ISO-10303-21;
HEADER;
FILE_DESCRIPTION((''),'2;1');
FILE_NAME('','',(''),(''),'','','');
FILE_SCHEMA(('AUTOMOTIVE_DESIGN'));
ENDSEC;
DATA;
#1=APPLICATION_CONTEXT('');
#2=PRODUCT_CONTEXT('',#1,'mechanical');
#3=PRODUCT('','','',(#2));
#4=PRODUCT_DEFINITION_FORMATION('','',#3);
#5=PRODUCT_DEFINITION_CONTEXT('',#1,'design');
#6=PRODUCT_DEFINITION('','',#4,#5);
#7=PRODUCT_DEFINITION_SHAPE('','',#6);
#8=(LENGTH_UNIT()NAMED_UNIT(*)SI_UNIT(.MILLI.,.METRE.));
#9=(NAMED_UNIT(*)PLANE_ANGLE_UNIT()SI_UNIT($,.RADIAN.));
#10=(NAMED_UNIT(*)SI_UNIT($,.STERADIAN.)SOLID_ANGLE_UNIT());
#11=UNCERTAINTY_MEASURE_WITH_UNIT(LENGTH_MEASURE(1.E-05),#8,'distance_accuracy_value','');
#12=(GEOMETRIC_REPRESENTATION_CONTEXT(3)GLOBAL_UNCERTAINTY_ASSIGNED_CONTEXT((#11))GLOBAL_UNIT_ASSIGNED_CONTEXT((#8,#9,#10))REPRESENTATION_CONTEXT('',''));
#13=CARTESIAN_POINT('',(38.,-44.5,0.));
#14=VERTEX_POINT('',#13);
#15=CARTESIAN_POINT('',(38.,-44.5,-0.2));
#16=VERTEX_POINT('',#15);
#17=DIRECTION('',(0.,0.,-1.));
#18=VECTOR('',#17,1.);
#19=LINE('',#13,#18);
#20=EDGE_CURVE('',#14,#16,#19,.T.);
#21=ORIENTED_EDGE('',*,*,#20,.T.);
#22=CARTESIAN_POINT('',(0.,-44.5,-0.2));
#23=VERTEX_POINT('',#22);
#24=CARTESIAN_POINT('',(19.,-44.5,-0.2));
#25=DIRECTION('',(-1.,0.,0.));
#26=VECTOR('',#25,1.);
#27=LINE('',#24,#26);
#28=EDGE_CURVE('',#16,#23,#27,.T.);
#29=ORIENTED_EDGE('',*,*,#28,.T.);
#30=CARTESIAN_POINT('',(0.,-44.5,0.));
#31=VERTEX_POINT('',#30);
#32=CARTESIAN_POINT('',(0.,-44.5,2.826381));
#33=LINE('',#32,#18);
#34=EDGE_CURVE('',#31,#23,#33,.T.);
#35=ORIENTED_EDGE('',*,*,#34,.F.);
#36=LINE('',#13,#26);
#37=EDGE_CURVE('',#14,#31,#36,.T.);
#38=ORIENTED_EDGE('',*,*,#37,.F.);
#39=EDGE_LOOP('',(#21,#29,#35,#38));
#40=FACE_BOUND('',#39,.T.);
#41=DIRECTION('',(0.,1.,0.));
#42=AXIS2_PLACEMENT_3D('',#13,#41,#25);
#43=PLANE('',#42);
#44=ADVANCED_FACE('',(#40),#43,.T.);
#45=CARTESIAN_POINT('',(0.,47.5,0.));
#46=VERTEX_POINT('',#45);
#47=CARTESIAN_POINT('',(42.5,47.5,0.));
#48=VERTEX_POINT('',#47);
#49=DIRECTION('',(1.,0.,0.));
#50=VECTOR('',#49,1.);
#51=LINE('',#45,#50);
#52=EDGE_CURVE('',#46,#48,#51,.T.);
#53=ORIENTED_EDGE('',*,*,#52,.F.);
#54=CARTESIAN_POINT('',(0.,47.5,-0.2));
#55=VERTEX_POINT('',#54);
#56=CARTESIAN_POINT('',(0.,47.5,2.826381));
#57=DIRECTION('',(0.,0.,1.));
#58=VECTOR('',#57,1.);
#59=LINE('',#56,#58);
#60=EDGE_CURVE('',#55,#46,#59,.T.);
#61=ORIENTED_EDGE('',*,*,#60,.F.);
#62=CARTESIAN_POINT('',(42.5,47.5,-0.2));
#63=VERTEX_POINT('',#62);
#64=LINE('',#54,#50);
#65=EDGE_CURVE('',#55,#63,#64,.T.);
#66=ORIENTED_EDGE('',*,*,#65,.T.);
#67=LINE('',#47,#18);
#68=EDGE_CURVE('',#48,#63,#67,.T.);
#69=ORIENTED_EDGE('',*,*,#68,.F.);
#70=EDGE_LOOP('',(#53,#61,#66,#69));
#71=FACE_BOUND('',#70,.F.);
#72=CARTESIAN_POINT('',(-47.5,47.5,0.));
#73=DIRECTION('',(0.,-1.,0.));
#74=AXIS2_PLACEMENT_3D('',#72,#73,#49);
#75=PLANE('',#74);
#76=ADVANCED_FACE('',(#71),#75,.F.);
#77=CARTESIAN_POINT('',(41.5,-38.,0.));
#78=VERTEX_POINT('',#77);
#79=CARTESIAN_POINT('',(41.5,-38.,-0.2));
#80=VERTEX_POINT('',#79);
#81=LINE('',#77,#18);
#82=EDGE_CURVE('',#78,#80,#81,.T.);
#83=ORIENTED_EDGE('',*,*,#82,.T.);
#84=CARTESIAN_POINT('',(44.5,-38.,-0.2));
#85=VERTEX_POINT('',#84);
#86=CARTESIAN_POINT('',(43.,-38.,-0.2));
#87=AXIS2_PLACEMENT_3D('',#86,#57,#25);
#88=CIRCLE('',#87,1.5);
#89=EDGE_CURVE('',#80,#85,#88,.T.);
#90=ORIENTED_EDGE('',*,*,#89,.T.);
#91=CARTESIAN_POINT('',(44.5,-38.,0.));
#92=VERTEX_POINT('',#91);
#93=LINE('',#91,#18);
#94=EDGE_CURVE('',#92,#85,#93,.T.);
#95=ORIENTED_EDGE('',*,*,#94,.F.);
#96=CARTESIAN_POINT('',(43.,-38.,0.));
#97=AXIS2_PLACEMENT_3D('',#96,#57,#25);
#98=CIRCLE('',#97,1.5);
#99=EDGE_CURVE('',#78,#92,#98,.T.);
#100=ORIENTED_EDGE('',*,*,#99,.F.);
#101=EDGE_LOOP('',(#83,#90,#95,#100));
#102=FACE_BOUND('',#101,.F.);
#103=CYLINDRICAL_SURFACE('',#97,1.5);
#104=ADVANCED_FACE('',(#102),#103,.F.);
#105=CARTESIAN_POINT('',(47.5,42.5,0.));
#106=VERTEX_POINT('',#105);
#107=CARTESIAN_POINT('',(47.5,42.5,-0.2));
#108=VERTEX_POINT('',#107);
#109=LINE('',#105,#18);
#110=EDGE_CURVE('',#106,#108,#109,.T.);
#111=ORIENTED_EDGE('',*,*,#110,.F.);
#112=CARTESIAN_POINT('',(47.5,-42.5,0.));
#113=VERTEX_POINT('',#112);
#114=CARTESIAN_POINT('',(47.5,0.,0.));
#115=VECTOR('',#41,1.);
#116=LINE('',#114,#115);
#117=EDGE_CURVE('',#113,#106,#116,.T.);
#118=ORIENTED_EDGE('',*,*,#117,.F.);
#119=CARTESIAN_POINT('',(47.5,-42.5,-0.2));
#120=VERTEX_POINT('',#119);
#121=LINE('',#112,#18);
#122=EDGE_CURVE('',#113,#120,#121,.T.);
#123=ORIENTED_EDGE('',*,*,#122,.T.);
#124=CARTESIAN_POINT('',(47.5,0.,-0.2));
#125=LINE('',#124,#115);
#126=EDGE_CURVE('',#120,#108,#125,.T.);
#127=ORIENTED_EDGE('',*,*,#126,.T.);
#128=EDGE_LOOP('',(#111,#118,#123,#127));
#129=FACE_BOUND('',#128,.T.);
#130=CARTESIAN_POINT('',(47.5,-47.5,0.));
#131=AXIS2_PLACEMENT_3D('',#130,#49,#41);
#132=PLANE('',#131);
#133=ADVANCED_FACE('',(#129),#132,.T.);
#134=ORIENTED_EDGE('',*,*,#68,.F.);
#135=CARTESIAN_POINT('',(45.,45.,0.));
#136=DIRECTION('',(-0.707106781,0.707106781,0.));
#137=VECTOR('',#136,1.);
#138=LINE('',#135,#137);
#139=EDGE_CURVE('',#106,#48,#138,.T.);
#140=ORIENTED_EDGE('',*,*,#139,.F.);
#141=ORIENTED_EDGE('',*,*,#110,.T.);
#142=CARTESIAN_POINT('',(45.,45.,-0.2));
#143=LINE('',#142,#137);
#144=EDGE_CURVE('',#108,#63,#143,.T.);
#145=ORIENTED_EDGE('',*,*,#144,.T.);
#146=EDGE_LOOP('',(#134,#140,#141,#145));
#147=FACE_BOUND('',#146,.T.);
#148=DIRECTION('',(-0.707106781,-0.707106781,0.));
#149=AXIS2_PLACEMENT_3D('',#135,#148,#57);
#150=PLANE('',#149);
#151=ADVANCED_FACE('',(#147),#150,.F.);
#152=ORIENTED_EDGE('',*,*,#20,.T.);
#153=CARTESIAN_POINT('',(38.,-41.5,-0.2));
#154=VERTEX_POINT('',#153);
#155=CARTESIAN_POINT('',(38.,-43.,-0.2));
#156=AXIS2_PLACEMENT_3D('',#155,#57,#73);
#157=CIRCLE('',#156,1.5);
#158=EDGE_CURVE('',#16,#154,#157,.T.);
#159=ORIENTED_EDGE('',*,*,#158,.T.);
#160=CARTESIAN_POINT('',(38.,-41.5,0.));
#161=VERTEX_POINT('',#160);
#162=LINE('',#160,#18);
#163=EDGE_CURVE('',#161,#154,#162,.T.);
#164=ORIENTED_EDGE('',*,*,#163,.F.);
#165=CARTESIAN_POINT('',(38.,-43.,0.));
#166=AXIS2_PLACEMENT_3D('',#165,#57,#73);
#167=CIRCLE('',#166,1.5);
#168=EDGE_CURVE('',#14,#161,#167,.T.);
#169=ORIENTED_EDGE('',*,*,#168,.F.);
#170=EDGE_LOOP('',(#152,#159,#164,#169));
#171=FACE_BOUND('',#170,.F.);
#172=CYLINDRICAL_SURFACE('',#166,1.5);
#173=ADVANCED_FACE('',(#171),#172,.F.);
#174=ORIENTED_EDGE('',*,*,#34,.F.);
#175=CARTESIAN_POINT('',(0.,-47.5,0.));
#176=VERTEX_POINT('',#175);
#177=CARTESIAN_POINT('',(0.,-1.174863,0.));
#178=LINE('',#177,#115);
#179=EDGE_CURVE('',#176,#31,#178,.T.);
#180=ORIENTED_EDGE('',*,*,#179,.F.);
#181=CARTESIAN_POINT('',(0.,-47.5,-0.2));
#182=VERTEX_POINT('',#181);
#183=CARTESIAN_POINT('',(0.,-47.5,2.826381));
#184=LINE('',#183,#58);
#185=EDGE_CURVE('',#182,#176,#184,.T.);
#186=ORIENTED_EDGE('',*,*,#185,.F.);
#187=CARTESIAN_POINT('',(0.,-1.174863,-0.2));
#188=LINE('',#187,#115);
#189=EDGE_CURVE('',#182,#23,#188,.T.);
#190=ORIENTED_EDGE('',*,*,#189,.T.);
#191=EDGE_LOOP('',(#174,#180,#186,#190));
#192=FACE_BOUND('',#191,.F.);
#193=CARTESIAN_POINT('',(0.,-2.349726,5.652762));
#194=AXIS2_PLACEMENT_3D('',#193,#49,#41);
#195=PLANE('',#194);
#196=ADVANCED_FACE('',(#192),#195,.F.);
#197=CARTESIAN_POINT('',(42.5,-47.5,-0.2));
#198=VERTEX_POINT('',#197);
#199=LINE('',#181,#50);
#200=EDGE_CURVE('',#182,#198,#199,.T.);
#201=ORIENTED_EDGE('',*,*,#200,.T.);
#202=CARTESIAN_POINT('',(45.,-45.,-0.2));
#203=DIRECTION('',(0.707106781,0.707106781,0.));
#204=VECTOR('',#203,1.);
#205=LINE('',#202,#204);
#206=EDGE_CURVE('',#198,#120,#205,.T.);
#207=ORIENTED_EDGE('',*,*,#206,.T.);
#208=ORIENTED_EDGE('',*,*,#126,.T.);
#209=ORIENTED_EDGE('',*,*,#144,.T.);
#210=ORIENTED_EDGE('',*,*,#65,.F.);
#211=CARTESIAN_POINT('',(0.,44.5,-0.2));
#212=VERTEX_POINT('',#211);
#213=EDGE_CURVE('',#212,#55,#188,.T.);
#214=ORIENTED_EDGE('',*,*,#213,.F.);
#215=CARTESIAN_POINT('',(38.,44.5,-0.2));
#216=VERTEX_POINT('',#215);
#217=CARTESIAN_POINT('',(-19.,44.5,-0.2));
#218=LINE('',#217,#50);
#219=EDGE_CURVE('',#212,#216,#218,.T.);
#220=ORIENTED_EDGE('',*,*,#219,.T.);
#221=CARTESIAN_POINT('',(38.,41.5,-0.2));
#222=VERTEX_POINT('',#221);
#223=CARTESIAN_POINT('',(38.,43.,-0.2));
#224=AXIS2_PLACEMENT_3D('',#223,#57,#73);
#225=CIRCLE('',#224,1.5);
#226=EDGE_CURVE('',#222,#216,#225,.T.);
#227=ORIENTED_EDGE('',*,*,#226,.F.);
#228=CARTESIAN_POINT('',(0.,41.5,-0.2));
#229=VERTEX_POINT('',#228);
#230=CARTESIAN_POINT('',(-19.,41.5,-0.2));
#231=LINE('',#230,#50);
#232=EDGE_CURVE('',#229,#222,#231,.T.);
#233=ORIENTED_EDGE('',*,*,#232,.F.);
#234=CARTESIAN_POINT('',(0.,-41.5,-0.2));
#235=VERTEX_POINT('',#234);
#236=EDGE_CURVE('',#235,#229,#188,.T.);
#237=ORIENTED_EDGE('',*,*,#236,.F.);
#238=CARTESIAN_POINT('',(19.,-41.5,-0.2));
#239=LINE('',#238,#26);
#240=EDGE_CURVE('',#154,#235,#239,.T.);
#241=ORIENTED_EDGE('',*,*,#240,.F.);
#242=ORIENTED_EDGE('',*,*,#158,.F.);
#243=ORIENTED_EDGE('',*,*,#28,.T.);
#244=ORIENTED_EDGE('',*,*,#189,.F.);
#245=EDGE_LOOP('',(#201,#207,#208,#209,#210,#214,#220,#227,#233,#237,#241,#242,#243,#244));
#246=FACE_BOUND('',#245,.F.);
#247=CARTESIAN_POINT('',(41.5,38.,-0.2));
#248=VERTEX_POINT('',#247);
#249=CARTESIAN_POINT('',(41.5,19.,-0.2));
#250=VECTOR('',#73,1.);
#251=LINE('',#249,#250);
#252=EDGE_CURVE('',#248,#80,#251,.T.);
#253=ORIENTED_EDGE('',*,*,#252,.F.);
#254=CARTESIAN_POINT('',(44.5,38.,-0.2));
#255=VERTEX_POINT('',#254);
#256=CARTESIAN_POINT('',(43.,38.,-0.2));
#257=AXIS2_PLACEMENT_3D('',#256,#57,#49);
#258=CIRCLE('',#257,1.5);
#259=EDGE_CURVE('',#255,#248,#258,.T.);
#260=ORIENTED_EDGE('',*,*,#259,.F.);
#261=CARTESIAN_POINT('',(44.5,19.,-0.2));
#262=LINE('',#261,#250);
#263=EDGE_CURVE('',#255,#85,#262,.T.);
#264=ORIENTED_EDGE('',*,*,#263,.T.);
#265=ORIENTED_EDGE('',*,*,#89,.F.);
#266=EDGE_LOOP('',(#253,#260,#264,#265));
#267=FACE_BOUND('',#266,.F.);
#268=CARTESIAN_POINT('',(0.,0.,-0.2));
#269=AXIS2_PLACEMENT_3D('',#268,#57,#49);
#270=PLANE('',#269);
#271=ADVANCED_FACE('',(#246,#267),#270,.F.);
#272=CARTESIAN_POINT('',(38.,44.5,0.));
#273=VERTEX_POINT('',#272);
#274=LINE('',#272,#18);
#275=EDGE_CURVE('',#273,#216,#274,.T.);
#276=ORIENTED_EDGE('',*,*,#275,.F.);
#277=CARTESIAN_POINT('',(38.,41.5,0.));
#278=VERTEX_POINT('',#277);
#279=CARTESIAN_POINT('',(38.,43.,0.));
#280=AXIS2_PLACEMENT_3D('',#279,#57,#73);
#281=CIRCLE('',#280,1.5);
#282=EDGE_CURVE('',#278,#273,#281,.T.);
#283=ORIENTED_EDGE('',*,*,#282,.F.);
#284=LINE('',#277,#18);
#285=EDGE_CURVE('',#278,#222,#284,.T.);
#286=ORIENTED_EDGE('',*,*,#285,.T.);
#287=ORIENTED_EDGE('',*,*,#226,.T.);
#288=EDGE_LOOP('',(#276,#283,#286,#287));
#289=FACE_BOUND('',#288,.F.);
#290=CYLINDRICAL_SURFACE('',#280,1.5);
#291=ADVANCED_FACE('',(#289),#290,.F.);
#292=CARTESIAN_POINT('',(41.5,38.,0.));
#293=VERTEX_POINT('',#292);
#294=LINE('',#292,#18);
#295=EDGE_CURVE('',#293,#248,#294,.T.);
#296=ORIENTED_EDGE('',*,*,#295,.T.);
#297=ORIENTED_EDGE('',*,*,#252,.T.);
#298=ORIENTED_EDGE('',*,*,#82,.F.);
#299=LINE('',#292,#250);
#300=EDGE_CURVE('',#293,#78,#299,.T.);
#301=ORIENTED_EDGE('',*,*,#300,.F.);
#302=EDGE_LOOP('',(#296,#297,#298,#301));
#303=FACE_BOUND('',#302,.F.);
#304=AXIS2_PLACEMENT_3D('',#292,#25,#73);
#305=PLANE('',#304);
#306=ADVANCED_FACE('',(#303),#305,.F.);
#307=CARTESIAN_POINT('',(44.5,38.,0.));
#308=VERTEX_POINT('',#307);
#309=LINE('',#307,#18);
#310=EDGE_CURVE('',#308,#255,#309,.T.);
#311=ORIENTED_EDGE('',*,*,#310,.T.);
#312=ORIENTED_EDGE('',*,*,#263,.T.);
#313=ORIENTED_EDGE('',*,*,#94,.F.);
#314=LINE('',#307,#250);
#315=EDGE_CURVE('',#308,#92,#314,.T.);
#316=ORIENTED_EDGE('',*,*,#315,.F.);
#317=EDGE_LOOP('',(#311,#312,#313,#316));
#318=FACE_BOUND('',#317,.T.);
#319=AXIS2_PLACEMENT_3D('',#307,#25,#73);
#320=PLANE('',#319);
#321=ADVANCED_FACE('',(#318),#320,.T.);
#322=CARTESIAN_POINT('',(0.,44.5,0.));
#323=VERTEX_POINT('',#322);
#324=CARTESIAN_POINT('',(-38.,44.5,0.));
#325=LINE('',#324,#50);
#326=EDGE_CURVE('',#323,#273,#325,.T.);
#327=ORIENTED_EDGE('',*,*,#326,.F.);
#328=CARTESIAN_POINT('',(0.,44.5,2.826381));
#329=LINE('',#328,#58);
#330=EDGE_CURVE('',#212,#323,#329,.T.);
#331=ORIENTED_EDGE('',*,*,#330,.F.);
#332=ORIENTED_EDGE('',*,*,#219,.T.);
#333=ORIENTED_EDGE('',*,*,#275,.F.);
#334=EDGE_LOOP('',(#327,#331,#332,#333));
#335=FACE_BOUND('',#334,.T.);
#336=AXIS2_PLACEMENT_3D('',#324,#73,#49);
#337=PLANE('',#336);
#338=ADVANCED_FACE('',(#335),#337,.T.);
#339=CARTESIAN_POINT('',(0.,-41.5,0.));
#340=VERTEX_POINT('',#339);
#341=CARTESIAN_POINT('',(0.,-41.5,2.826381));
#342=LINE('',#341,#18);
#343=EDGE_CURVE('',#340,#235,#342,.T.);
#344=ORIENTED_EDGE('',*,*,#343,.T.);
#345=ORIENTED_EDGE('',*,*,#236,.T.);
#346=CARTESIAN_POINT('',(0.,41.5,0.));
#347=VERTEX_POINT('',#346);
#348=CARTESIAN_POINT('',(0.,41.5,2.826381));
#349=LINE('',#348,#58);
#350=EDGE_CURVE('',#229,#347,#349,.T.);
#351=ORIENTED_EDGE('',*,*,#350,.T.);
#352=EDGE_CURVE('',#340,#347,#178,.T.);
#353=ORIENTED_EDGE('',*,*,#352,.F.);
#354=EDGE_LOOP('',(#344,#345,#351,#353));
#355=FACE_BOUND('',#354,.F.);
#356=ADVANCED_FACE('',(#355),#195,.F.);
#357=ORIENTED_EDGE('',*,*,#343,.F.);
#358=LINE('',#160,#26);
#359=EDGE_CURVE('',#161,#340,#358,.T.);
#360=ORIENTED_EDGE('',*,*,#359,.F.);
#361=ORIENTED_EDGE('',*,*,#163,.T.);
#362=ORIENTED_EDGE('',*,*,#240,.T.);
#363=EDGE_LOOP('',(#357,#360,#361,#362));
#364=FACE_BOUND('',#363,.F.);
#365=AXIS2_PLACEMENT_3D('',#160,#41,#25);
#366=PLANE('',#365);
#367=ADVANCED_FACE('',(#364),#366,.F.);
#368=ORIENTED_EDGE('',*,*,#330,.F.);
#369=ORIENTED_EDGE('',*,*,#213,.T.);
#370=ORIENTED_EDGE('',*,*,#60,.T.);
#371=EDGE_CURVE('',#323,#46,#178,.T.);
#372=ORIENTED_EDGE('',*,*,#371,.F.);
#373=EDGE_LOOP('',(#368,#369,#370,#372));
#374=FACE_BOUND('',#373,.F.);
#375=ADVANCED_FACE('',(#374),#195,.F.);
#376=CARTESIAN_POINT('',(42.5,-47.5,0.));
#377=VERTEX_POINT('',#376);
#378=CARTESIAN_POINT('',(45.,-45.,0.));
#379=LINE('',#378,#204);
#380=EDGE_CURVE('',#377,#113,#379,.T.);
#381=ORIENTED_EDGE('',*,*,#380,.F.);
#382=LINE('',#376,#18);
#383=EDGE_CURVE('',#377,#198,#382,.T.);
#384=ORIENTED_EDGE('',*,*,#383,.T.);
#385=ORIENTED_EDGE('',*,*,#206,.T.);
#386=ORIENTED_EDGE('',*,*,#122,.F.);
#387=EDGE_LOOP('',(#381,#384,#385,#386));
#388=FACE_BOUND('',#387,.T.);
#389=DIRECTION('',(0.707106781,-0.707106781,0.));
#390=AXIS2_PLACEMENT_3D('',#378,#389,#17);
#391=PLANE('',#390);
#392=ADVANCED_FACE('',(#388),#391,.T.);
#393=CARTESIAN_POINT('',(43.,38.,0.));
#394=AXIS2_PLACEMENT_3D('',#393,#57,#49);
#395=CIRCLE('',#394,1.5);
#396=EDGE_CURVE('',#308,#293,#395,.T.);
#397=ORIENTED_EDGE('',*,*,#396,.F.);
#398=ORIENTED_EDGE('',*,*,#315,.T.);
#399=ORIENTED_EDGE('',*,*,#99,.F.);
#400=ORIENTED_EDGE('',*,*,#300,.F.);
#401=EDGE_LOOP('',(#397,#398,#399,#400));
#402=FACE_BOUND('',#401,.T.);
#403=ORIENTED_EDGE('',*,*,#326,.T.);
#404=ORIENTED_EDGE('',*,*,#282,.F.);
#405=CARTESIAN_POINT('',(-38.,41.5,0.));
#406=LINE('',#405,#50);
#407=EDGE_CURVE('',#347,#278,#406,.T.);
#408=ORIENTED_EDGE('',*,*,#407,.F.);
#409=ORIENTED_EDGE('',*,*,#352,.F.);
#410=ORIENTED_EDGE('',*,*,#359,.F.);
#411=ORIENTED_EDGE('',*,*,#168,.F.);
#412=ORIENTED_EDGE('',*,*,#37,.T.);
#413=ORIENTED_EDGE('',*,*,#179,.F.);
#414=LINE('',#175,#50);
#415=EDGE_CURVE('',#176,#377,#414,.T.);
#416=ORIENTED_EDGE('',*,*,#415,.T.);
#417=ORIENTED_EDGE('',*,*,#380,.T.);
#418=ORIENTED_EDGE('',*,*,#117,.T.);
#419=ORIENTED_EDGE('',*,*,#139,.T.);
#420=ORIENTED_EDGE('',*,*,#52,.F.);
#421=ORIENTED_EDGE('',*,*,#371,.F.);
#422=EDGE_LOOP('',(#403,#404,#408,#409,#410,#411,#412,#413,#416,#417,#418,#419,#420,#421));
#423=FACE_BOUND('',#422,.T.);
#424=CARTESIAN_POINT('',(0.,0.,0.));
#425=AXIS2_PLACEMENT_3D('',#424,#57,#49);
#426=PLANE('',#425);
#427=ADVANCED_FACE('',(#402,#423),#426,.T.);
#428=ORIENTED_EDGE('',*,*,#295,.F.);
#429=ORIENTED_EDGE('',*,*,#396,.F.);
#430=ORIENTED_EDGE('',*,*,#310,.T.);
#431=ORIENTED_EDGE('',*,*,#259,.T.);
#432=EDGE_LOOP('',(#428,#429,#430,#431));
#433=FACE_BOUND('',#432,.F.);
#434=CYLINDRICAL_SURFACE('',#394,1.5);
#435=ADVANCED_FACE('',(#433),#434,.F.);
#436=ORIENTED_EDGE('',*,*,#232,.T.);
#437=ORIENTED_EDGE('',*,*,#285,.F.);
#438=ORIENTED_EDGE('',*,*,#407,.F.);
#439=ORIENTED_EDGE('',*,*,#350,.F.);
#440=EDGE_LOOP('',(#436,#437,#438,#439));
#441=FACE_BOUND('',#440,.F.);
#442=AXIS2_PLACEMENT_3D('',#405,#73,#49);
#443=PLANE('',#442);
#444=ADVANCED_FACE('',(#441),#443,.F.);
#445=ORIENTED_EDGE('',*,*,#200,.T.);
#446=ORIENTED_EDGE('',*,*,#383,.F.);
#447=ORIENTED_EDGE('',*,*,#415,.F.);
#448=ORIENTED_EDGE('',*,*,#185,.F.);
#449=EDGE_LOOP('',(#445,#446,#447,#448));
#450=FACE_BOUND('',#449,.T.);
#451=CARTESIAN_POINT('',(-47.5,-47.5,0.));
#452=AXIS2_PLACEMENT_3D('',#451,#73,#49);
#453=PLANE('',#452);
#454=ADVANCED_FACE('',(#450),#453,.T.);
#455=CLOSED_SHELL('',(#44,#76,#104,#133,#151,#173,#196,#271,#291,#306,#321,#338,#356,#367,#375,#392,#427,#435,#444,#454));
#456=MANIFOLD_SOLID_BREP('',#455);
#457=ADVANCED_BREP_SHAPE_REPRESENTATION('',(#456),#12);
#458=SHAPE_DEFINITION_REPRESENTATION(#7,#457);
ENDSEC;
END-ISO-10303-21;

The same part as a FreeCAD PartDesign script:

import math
import FreeCAD as App
import Part
import Sketcher

V = App.Vector


def edges_at(feature, points):
    """Names of the edges that pass closest to the given points."""
    edges = feature.Shape.Edges
    near = lambda p: min(range(len(edges)), key=lambda i: edges[i].distToShape(Part.Vertex(*p))[0])
    return sorted({f"Edge{near(p) + 1}" for p in points})


def add_polygon(sketch, points):
    """Adds a closed chain of lines whose ends are joined by coincident constraints."""
    first, n = sketch.GeometryCount, len(points)
    for a, b in zip(points, points[1:] + points[:1]):
        sketch.addGeometry(Part.LineSegment(App.Vector(*a, 0), App.Vector(*b, 0)), False)
    for i in range(n):
        sketch.addConstraint(Sketcher.Constraint("Coincident", first + i, 2, first + (i + 1) % n, 1))

doc = App.newDocument("Part")
body = doc.addObject("PartDesign::Body", "Body")

# Sketch on XY plane
sketch1 = body.newObject("Sketcher::SketchObject", "Sketch")
sketch1.AttachmentSupport = (doc.getObject("XY_Plane"), [""])
sketch1.MapMode = "FlatFace"
add_polygon(sketch1, [(-48, 48), (-48, -48), (48, -48), (48, 48)])  # lines 0-3
sketch1.addConstraint([
    Sketcher.Constraint("Vertical", 0),
    Sketcher.Constraint("Horizontal", 1),
    Sketcher.Constraint("Vertical", 2),
    Sketcher.Constraint("Horizontal", 3),
    Sketcher.Constraint("Symmetric", 0, 2, 2, 2, -1, 1),
    Sketcher.Constraint("Equal", 3, 0),
    Sketcher.Constraint("DistanceX", 1, 1, 1, 2, 95.0),
])
pad1 = body.newObject("PartDesign::Pad", "Pad")
pad1.Profile = sketch1
pad1.Length = 0.2
pad1.Reversed = True
doc.recompute()

chamfer = body.newObject("PartDesign::Chamfer", "Chamfer")
chamfer.Base = (pad1, edges_at(pad1, [
    (-47.5, 47.5, -0.1),
    (47.5, 47.5, -0.1),
    (-47.5, -47.5, -0.1),
    (47.5, -47.5, -0.1),
]))
chamfer.Size = 5

# Sketch on XY plane
sketch2 = body.newObject("Sketcher::SketchObject", "Sketch001")
sketch2.AttachmentSupport = (doc.getObject("XY_Plane"), [""])
sketch2.MapMode = "FlatFace"
sketch2.addGeometry([
    Part.ArcOfCircle(Part.Circle(V(-38, 43, 0), V(0, 0, 1), 1.5), math.radians(90), math.radians(270)),
    Part.LineSegment(V(-38, 41.5, 0), V(38, 41.5, 0)),
    Part.ArcOfCircle(Part.Circle(V(38, 43, 0), V(0, 0, 1), 1.5), math.radians(-90), math.radians(90)),
    Part.LineSegment(V(38, 44.5, 0), V(-38, 44.5, 0)),
], False)
sketch2.addConstraint([
    Sketcher.Constraint("Tangent", 0, 2, 1, 1),
    Sketcher.Constraint("Tangent", 1, 2, 2, 1),
    Sketcher.Constraint("Tangent", 2, 2, 3, 1),
    Sketcher.Constraint("Tangent", 3, 2, 0, 1),
    Sketcher.Constraint("Horizontal", 1),
    Sketcher.Constraint("Horizontal", 3),
    Sketcher.Constraint("Radius", 0, 1.5),
    Sketcher.Constraint("DistanceX", 1, 1, 1, 2, 76.0),
    Sketcher.Constraint("DistanceX", 0, 3, -1, 1, 38.0),
    Sketcher.Constraint("DistanceY", -1, 1, 0, 3, 43.0),
])
pocket1 = body.newObject("PartDesign::Pocket", "Pocket")
pocket1.Profile = sketch2
pocket1.Length = 5
doc.recompute()

polarpattern = body.newObject("PartDesign::PolarPattern", "PolarPattern")
polarpattern.Originals = [pocket1]
polarpattern.Axis = (doc.getObject("Z_Axis"), [""])
polarpattern.Angle = 360
polarpattern.Occurrences = 4
body.Tip = polarpattern

# Sketch on YZ plane
sketch3 = body.newObject("Sketcher::SketchObject", "Sketch002")
sketch3.AttachmentSupport = (doc.getObject("YZ_Plane"), [""])
sketch3.MapMode = "FlatFace"
add_polygon(sketch3, [(-67, 18), (-67, -7), (62, -7), (62, 18)])  # lines 0-3
sketch3.addConstraint([
    Sketcher.Constraint("Vertical", 0),
    Sketcher.Constraint("Horizontal", 1),
    Sketcher.Constraint("Vertical", 2),
    Sketcher.Constraint("Horizontal", 3),
    Sketcher.Constraint("DistanceX", 1, 1, 1, 2, 129.60696),
    Sketcher.Constraint("DistanceY", 0, 2, 0, 1, 24.349444),
    Sketcher.Constraint("DistanceY", 0, 2, -1, 1, 6.52196),
    Sketcher.Constraint("DistanceX", 0, 2, -1, 1, 67.153206),
])
pocket2 = body.newObject("PartDesign::Pocket", "Pocket001")
pocket2.Profile = sketch3
pocket2.Type = "ThroughAll"

doc.recompute()
